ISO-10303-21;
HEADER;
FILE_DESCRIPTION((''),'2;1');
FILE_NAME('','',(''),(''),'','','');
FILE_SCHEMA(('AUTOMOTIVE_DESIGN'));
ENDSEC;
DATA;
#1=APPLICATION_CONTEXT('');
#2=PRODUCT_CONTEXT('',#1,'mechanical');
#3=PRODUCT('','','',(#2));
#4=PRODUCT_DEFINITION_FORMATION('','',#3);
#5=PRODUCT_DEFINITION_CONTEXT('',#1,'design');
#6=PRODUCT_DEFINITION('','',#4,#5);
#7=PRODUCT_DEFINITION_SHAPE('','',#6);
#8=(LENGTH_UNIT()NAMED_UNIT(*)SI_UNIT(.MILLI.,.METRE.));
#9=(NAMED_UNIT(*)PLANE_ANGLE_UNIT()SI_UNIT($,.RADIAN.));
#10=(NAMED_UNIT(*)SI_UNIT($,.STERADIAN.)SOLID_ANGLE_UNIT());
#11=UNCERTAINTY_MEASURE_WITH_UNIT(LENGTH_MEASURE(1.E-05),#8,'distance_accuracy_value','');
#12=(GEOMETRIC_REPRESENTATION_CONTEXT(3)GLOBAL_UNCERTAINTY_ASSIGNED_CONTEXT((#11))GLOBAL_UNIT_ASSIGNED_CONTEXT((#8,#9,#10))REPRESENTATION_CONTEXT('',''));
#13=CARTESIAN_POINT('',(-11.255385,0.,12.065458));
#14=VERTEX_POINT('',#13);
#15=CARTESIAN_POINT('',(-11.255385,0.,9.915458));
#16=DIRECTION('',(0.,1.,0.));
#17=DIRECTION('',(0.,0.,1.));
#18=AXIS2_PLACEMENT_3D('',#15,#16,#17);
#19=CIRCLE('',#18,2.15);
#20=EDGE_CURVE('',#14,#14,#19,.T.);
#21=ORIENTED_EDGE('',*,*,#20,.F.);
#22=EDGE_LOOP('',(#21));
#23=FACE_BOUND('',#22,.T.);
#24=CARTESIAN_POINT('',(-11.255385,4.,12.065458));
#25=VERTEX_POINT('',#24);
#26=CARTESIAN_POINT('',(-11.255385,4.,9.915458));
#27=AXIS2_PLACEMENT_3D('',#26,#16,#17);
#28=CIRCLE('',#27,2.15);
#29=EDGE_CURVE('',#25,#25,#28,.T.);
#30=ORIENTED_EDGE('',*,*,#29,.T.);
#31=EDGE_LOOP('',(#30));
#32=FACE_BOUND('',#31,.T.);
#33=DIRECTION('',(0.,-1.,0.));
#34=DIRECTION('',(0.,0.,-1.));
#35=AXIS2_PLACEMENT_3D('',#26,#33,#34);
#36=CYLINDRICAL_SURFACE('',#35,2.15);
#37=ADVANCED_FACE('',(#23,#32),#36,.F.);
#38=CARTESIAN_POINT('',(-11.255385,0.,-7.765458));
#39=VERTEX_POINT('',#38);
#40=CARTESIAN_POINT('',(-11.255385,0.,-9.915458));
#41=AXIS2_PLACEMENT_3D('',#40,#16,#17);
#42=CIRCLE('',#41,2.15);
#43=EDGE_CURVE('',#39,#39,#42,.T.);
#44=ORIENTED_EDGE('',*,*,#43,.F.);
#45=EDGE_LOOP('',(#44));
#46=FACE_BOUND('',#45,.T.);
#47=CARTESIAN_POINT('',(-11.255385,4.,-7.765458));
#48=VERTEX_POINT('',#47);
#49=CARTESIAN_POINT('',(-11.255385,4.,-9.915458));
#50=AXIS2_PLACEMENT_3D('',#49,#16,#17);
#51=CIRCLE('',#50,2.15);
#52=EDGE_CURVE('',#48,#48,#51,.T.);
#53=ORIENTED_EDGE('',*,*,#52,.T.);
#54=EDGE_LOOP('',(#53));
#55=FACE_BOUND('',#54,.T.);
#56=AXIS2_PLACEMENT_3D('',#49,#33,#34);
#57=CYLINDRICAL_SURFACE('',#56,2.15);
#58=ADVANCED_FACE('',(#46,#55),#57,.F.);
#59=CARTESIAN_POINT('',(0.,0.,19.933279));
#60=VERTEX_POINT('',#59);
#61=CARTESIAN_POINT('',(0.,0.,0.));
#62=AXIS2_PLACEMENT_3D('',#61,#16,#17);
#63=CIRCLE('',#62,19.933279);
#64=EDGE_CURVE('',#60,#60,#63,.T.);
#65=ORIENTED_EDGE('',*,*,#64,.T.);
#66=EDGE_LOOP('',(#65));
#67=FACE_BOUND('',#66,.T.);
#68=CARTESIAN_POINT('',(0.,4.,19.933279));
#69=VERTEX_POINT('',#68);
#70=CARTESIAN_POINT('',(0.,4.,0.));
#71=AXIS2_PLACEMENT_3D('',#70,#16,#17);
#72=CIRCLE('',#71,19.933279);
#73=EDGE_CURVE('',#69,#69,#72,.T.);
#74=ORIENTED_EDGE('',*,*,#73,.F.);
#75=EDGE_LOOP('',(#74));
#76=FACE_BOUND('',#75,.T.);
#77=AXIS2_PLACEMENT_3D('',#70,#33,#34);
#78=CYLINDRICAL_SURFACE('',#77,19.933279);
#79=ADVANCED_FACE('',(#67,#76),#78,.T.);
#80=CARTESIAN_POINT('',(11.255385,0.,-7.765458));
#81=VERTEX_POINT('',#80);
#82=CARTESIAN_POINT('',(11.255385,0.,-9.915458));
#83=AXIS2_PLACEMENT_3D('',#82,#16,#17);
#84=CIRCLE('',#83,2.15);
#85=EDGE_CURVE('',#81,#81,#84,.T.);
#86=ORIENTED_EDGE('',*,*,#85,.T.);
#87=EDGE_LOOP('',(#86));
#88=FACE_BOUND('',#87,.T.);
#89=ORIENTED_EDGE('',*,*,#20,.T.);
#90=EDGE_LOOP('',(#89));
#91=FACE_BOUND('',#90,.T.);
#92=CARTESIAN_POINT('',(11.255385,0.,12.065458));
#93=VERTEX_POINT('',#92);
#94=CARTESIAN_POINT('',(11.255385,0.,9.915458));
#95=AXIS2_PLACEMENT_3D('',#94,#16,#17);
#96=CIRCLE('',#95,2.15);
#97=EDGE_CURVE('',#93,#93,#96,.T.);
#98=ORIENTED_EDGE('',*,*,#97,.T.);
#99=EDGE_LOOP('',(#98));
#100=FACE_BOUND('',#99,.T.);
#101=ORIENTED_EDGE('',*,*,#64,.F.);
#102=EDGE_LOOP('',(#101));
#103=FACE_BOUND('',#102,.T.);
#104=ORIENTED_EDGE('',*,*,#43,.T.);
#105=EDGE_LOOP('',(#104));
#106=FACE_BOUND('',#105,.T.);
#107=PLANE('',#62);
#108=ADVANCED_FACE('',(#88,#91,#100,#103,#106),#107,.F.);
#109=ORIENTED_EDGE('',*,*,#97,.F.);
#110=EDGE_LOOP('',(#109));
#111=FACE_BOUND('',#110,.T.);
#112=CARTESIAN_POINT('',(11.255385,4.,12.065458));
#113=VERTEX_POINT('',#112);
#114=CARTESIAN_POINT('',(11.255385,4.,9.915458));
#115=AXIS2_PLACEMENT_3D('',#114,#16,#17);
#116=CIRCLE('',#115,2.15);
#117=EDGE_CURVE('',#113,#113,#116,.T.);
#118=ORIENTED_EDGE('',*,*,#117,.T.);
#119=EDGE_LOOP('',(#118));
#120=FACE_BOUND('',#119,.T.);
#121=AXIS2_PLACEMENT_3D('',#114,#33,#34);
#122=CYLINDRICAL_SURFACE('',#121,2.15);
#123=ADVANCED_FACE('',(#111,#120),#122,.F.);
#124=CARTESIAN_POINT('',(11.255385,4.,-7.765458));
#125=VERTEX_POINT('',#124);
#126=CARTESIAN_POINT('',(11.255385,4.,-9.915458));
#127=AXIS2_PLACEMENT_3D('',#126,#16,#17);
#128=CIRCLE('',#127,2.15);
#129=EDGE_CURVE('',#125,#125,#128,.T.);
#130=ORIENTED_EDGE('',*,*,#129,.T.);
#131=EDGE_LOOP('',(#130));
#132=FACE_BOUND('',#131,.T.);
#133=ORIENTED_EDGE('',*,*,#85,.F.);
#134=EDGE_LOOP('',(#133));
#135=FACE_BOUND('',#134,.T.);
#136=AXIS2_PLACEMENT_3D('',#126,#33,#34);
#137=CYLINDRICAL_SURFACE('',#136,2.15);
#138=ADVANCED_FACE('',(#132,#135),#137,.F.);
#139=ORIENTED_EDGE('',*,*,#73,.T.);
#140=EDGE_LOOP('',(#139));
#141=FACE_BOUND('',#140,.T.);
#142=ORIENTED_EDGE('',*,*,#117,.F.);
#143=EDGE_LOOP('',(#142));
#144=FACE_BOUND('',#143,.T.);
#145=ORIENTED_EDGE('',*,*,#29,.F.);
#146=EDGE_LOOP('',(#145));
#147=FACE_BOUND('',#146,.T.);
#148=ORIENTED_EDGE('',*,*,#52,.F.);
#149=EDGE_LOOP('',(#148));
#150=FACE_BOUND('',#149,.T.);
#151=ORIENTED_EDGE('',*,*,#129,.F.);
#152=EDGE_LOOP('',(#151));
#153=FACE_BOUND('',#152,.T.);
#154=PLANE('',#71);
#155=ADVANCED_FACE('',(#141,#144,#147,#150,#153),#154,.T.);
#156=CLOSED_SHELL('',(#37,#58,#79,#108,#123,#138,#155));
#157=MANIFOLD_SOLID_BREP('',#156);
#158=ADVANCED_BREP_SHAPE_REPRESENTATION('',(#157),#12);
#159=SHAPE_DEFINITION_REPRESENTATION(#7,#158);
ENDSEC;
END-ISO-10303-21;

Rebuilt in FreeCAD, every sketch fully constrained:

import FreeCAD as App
import Part
import Sketcher

V = App.Vector

doc = App.newDocument("Part")
body = doc.addObject("PartDesign::Body", "Body")

sketch1 = body.newObject("Sketcher::SketchObject", "Sketch")
sketch1.AttachmentSupport = (doc.getObject("XZ_Plane"), [""])
sketch1.MapMode = "FlatFace"
sketch1.addGeometry(Part.Circle(V(0, 0, 0), V(0, 0, 1), 19.933279), False)
sketch1.addGeometry(Part.Circle(V(-11.255385, -9.915458, 0), V(0, 0, 1), 2.15), False)
sketch1.addGeometry(Part.Circle(V(-11.255385, 9.915458, 0), V(0, 0, 1), 2.15), False)
sketch1.addGeometry(Part.Circle(V(11.255385, -9.915458, 0), V(0, 0, 1), 2.15), False)
sketch1.addGeometry(Part.Circle(V(11.255385, 9.915458, 0), V(0, 0, 1), 2.15), False)
sketch1.addConstraint(Sketcher.Constraint("Coincident", 0, 3, -1, 1))
sketch1.addConstraint(Sketcher.Constraint("Equal", 1, 2))
sketch1.addConstraint(Sketcher.Constraint("Equal", 2, 3))
sketch1.addConstraint(Sketcher.Constraint("Equal", 3, 4))
sketch1.addConstraint(Sketcher.Constraint("Symmetric", 2, 3, 3, 3, -1, 1))
sketch1.addConstraint(Sketcher.Constraint("Symmetric", 1, 3, 4, 3, -1, 1))
sketch1.addConstraint(Sketcher.Constraint("Symmetric", 1, 3, 3, 3, -2))
sketch1.addConstraint(Sketcher.Constraint("Diameter", 1, 4.3))
sketch1.addConstraint(Sketcher.Constraint("Diameter", 0, 39.866558))
sketch1.addConstraint(Sketcher.Constraint("DistanceY", 1, 3, -1, 1, 9.915458))
sketch1.addConstraint(Sketcher.Constraint("DistanceX", 1, 3, 3, 3, 22.51077))
pad1 = body.newObject("PartDesign::Pad", "Pad")
pad1.Profile = sketch1
pad1.Length = 4
pad1.Reversed = True

doc.recompute()
